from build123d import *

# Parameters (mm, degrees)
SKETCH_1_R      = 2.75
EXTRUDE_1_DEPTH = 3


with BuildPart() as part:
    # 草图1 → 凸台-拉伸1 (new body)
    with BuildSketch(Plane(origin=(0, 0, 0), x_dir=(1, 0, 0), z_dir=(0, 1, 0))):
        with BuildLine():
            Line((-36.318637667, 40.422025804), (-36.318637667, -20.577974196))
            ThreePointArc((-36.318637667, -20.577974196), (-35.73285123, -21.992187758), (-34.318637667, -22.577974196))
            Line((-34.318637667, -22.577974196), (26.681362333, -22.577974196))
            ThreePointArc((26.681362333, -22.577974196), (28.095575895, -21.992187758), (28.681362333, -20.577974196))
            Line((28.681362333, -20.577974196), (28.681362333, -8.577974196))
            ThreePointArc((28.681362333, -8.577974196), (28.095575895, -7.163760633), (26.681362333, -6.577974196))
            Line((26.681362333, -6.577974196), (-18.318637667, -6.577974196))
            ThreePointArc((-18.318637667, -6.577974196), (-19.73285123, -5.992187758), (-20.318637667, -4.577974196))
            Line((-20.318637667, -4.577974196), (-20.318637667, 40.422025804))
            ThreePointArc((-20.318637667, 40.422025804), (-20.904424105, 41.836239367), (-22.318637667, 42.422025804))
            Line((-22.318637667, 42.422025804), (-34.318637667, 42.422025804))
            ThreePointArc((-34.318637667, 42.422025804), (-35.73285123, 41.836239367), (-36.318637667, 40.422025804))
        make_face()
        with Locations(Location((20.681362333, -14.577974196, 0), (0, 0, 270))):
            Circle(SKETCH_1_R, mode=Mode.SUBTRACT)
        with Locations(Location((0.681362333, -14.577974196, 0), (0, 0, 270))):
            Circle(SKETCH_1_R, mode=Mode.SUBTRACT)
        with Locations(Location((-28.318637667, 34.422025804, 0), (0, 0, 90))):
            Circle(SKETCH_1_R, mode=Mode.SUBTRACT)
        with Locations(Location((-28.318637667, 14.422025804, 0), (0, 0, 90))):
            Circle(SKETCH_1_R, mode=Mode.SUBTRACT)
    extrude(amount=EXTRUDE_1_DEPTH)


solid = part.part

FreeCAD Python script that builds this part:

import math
import FreeCAD as App
import Part
import Sketcher

V = App.Vector
Q = App.Units.Quantity

doc = App.newDocument("Part")
body = doc.addObject("PartDesign::Body", "Body")

# Sketch on XZ plane
sketch1 = body.newObject("Sketcher::SketchObject", "Sketch")
sketch1.AttachmentSupport = (doc.getObject("XZ_Plane"), [""])
sketch1.MapMode = "FlatFace"
sketch1.addGeometry([
    Part.LineSegment(V(-36.3, -40.4, 0), V(-36.3, 20.6, 0)),  # 0
    Part.ArcOfCircle(Part.Circle(V(-34.3, 20.6, 0), V(0, 0, 1), 2), math.radians(90), math.radians(180)),  # 1
    Part.LineSegment(V(-34.3, 22.6, 0), V(26.7, 22.6, 0)),  # 2
    Part.ArcOfCircle(Part.Circle(V(26.7, 20.6, 0), V(0, 0, 1), 2), math.radians(0), math.radians(90)),  # 3
    Part.LineSegment(V(28.7, 20.6, 0), V(28.7, 8.6, 0)),  # 4
    Part.ArcOfCircle(Part.Circle(V(26.7, 8.6, 0), V(0, 0, 1), 2), math.radians(-90), math.radians(0)),  # 5
    Part.LineSegment(V(26.7, 6.6, 0), V(-18.3, 6.6, 0)),  # 6
    Part.ArcOfCircle(Part.Circle(V(-18.3, 4.6, 0), V(0, 0, 1), 2), math.radians(90), math.radians(180)),  # 7
    Part.LineSegment(V(-20.3, 4.6, 0), V(-20.3, -40.4, 0)),  # 8
    Part.ArcOfCircle(Part.Circle(V(-22.3, -40.4, 0), V(0, 0, 1), 2), math.radians(-90), math.radians(0)),  # 9
    Part.LineSegment(V(-22.3, -42.4, 0), V(-34.3, -42.4, 0)),  # 10
    Part.ArcOfCircle(Part.Circle(V(-34.3, -40.4, 0), V(0, 0, 1), 2), math.radians(180), math.radians(270)),  # 11
    Part.Circle(V(0.7, 14.6, 0), V(0, 0, 1), 2.8),  # 12
    Part.Circle(V(20.7, 14.6, 0), V(0, 0, 1), 2.8),  # 13
    Part.Circle(V(-28.3, -14.4, 0), V(0, 0, 1), 2.8),  # 14
    Part.Circle(V(-28.3, -34.4, 0), V(0, 0, 1), 2.8),  # 15
], False)
sketch1.addConstraint([
    Sketcher.Constraint("Tangent", 0, 2, 1, 2),
    Sketcher.Constraint("Tangent", 1, 1, 2, 1),
    Sketcher.Constraint("Tangent", 2, 2, 3, 2),
    Sketcher.Constraint("Tangent", 3, 1, 4, 1),
    Sketcher.Constraint("Tangent", 4, 2, 5, 2),
    Sketcher.Constraint("Tangent", 5, 1, 6, 1),
    Sketcher.Constraint("Tangent", 6, 2, 7, 1),
    Sketcher.Constraint("Tangent", 7, 2, 8, 1),
    Sketcher.Constraint("Tangent", 8, 2, 9, 2),
    Sketcher.Constraint("Tangent", 9, 1, 10, 1),
    Sketcher.Constraint("Tangent", 10, 2, 11, 2),
    Sketcher.Constraint("Tangent", 11, 1, 0, 1),
    Sketcher.Constraint("Vertical", 0),
    Sketcher.Constraint("Horizontal", 2),
    Sketcher.Constraint("Vertical", 4),
    Sketcher.Constraint("Horizontal", 6),
    Sketcher.Constraint("Vertical", 8),
    Sketcher.Constraint("Horizontal", 10),
    Sketcher.Constraint("Equal", 1, 3),
    Sketcher.Constraint("Equal", 3, 5),
    Sketcher.Constraint("Equal", 5, 7),
    Sketcher.Constraint("Equal", 7, 9),
    Sketcher.Constraint("Equal", 9, 11),
    Sketcher.Constraint("Equal", 12, 13),
    Sketcher.Constraint("Equal", 13, 14),
    Sketcher.Constraint("Equal", 14, 15),
    Sketcher.Constraint("Horizontal", 12, 3, 13, 3),
    Sketcher.Constraint("Vertical", 14, 3, 15, 3),
    Sketcher.Constraint("Equal", 2, 0),
    Sketcher.Constraint("Equal", 10, 4),
    Sketcher.Constraint("Radius", 1, Q("2 mm")),
    Sketcher.Constraint("Diameter", 12, Q("5.5 mm")),
    Sketcher.Constraint("DistanceX", 2, 1, 2, 2, Q("61 mm")),
    Sketcher.Constraint("DistanceX", 6, 2, 6, 1, Q("45 mm")),
    Sketcher.Constraint("DistanceX", 7, 3, 12, 3, Q("19 mm")),
    Sketcher.Constraint("DistanceY", 7, 3, 12, 3, Q("10 mm")),
    Sketcher.Constraint("DistanceX", 13, 3, 3, 3, Q("6 mm")),
    Sketcher.Constraint("DistanceX", 14, 3, 7, 3, Q("10 mm")),
    Sketcher.Constraint("DistanceY", 14, 3, 7, 3, Q("19 mm")),
    Sketcher.Constraint("DistanceY", 9, 3, 15, 3, Q("6 mm")),
    Sketcher.Constraint("DistanceX", 1, 3, -1, 1, Q("34.318638 mm")),
    Sketcher.Constraint("DistanceY", -1, 1, 1, 3, Q("20.577974 mm")),
])
pad1 = body.newObject("PartDesign::Pad", "Pad")
pad1.Profile = sketch1
pad1.Length = 3
pad1.Reversed = True

doc.recompute()
